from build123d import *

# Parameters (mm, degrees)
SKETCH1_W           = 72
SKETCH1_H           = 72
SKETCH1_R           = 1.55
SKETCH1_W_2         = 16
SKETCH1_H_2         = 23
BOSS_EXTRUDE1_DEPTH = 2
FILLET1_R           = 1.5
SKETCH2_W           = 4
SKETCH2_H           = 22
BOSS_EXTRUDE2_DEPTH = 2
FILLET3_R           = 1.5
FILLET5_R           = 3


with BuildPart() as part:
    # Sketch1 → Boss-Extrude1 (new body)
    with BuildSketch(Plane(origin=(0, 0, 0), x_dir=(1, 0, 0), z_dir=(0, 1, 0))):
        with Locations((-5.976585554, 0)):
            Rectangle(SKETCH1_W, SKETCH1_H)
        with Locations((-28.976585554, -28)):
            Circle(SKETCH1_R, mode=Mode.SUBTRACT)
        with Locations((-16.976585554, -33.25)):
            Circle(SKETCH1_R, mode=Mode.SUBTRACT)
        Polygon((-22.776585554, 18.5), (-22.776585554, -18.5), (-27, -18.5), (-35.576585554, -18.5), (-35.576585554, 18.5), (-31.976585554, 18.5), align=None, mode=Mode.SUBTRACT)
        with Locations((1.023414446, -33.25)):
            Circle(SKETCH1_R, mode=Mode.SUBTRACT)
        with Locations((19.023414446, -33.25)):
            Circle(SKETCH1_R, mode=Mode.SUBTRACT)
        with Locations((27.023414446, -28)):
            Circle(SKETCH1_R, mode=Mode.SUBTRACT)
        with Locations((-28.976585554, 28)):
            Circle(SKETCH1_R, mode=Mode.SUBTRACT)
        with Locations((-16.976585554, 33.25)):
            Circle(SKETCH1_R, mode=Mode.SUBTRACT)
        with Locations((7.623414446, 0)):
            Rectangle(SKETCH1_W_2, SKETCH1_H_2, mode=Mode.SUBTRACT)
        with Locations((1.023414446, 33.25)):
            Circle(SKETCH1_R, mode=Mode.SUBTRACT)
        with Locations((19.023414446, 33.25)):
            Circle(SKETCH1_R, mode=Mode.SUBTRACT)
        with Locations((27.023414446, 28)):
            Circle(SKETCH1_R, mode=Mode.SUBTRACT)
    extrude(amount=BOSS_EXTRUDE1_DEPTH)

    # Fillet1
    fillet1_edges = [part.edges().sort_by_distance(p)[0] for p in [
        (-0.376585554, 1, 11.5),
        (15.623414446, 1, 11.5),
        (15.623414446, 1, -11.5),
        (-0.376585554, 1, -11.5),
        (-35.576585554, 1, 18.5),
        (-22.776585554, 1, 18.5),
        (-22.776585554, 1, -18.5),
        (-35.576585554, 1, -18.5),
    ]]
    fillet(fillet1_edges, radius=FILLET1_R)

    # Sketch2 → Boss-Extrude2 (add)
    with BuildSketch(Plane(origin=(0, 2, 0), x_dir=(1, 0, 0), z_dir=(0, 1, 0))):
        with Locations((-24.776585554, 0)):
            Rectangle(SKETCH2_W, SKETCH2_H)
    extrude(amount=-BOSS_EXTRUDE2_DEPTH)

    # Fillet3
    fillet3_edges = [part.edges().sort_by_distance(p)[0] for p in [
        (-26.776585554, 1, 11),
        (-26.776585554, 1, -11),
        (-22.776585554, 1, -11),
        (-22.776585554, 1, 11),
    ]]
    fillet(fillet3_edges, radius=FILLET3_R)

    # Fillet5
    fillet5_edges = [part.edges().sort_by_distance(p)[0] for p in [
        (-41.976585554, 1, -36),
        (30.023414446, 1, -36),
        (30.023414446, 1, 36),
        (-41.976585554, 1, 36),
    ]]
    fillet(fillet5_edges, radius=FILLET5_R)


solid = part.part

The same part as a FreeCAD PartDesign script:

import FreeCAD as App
import Part
import Sketcher
from FreeCAD import Vector


def edges_at(feature, points):
    """Names of the edges that pass closest to the given points."""
    edges = feature.Shape.Edges
    near = lambda p: min(range(len(edges)), key=lambda i: edges[i].distToShape(Part.Vertex(*p))[0])
    return sorted({f"Edge{near(p) + 1}" for p in points})

doc = App.newDocument("Part")
body = doc.addObject("PartDesign::Body", "Body")

sketch1 = body.newObject("Sketcher::SketchObject", "Sketch")
sketch1.AttachmentSupport = (doc.getObject("XZ_Plane"), [""])
sketch1.MapMode = "FlatFace"
sketch1.addGeometry(Part.LineSegment(Vector(-42, -36, 0), Vector(-42, 36, 0)), False)
sketch1.addGeometry(Part.LineSegment(Vector(-42, 36, 0), Vector(30, 36, 0)), False)
sketch1.addGeometry(Part.LineSegment(Vector(30, 36, 0), Vector(30, -36, 0)), False)
sketch1.addGeometry(Part.LineSegment(Vector(30, -36, 0), Vector(-42, -36, 0)), False)
sketch1.addGeometry(Part.Circle(Vector(-29, 28, 0), Vector(0, 0, 1), 1.6), False)
sketch1.addGeometry(Part.Circle(Vector(-17, 33.2, 0), Vector(0, 0, 1), 1.6), False)
sketch1.addGeometry(Part.Circle(Vector(1, 33.2, 0), Vector(0, 0, 1), 1.6), False)
sketch1.addGeometry(Part.Circle(Vector(19, 33.2, 0), Vector(0, 0, 1), 1.6), False)
sketch1.addGeometry(Part.Circle(Vector(27, 28, 0), Vector(0, 0, 1), 1.6), False)
sketch1.addGeometry(Part.LineSegment(Vector(-35.6, -18.5, 0), Vector(-22.8, -18.5, 0)), False)
sketch1.addGeometry(Part.LineSegment(Vector(-22.8, -18.5, 0), Vector(-22.8, 18.5, 0)), False)
sketch1.addGeometry(Part.LineSegment(Vector(-22.8, 18.5, 0), Vector(-35.6, 18.5, 0)), False)
sketch1.addGeometry(Part.LineSegment(Vector(-35.6, 18.5, 0), Vector(-35.6, -18.5, 0)), False)
sketch1.addGeometry(Part.Circle(Vector(-29, -28, 0), Vector(0, 0, 1), 1.6), False)
sketch1.addGeometry(Part.Circle(Vector(-17, -33.2, 0), Vector(0, 0, 1), 1.6), False)
sketch1.addGeometry(Part.LineSegment(Vector(15.6, 11.5, 0), Vector(-0.4, 11.5, 0)), False)
sketch1.addGeometry(Part.LineSegment(Vector(-0.4, 11.5, 0), Vector(-0.4, -11.5, 0)), False)
sketch1.addGeometry(Part.LineSegment(Vector(-0.4, -11.5, 0), Vector(15.6, -11.5, 0)), False)
sketch1.addGeometry(Part.LineSegment(Vector(15.6, -11.5, 0), Vector(15.6, 11.5, 0)), False)
sketch1.addGeometry(Part.Circle(Vector(1, -33.2, 0), Vector(0, 0, 1), 1.6), False)
sketch1.addGeometry(Part.Circle(Vector(19, -33.2, 0), Vector(0, 0, 1), 1.6), False)
sketch1.addGeometry(Part.Circle(Vector(27, -28, 0), Vector(0, 0, 1), 1.6), False)
sketch1.addConstraint(Sketcher.Constraint("Coincident", 0, 2, 1, 1))
sketch1.addConstraint(Sketcher.Constraint("Coincident", 1, 2, 2, 1))
sketch1.addConstraint(Sketcher.Constraint("Coincident", 2, 2, 3, 1))
sketch1.addConstraint(Sketcher.Constraint("Coincident", 3, 2, 0, 1))
sketch1.addConstraint(Sketcher.Constraint("Coincident", 9, 2, 10, 1))
sketch1.addConstraint(Sketcher.Constraint("Coincident", 10, 2, 11, 1))
sketch1.addConstraint(Sketcher.Constraint("Coincident", 11, 2, 12, 1))
sketch1.addConstraint(Sketcher.Constraint("Coincident", 12, 2, 9, 1))
sketch1.addConstraint(Sketcher.Constraint("Coincident", 15, 2, 16, 1))
sketch1.addConstraint(Sketcher.Constraint("Coincident", 16, 2, 17, 1))
sketch1.addConstraint(Sketcher.Constraint("Coincident", 17, 2, 18, 1))
sketch1.addConstraint(Sketcher.Constraint("Coincident", 18, 2, 15, 1))
sketch1.addConstraint(Sketcher.Constraint("Vertical", 0))
sketch1.addConstraint(Sketcher.Constraint("Horizontal", 1))
sketch1.addConstraint(Sketcher.Constraint("Vertical", 2))
sketch1.addConstraint(Sketcher.Constraint("Horizontal", 3))
sketch1.addConstraint(Sketcher.Constraint("Horizontal", 9))
sketch1.addConstraint(Sketcher.Constraint("Vertical", 10))
sketch1.addConstraint(Sketcher.Constraint("Horizontal", 11))
sketch1.addConstraint(Sketcher.Constraint("Vertical", 12))
sketch1.addConstraint(Sketcher.Constraint("Horizontal", 15))
sketch1.addConstraint(Sketcher.Constraint("Vertical", 16))
sketch1.addConstraint(Sketcher.Constraint("Horizontal", 17))
sketch1.addConstraint(Sketcher.Constraint("Vertical", 18))
sketch1.addConstraint(Sketcher.Constraint("Equal", 4, 5))
sketch1.addConstraint(Sketcher.Constraint("Equal", 5, 6))
sketch1.addConstraint(Sketcher.Constraint("Equal", 6, 7))
sketch1.addConstraint(Sketcher.Constraint("Equal", 7, 8))
sketch1.addConstraint(Sketcher.Constraint("Equal", 8, 13))
sketch1.addConstraint(Sketcher.Constraint("Equal", 13, 14))
sketch1.addConstraint(Sketcher.Constraint("Equal", 14, 19))
sketch1.addConstraint(Sketcher.Constraint("Equal", 19, 20))
sketch1.addConstraint(Sketcher.Constraint("Equal", 20, 21))
sketch1.addConstraint(Sketcher.Constraint("Symmetric", 4, 3, 13, 3, -1))
sketch1.addConstraint(Sketcher.Constraint("Symmetric", 5, 3, 14, 3, -1))
sketch1.addConstraint(Sketcher.Constraint("Symmetric", 6, 3, 19, 3, -1))
sketch1.addConstraint(Sketcher.Constraint("Symmetric", 7, 3, 20, 3, -1))
sketch1.addConstraint(Sketcher.Constraint("Symmetric", 8, 3, 21, 3, -1))
sketch1.addConstraint(Sketcher.Constraint("Horizontal", 5, 3, 6, 3))
sketch1.addConstraint(Sketcher.Constraint("Horizontal", 6, 3, 7, 3))
sketch1.addConstraint(Sketcher.Constraint("Horizontal", 4, 3, 8, 3))
sketch1.addConstraint(Sketcher.Constraint("Equal", 3, 0))
sketch1.addConstraint(Sketcher.Constraint("Diameter", 4, 3.1))
sketch1.addConstraint(Sketcher.Constraint("DistanceX", 1, 1, 1, 2, 72.0))
sketch1.addConstraint(Sketcher.Constraint("DistanceX", 15, 2, 15, 1, 16.0))
sketch1.addConstraint(Sketcher.Constraint("DistanceY", 10, 1, 10, 2, 37.0))
sketch1.addConstraint(Sketcher.Constraint("DistanceY", 16, 2, 16, 1, 23.0))
sketch1.addConstraint(Sketcher.Constraint("DistanceX", 9, 1, 9, 2, 12.8))
sketch1.addConstraint(Sketcher.Constraint("DistanceY", -1, 1, 4, 3, 28.0))
sketch1.addConstraint(Sketcher.Constraint("DistanceY", -1, 1, 0, 2, 36.0))
sketch1.addConstraint(Sketcher.Constraint("DistanceX", 4, 3, 5, 3, 12.0))
sketch1.addConstraint(Sketcher.Constraint("DistanceX", 5, 3, 6, 3, 18.0))
sketch1.addConstraint(Sketcher.Constraint("DistanceX", 6, 3, 7, 3, 18.0))
sketch1.addConstraint(Sketcher.Constraint("DistanceX", 7, 3, 8, 3, 8.0))
sketch1.addConstraint(Sketcher.Constraint("DistanceX", 0, 2, 4, 3, 13.0))
sketch1.addConstraint(Sketcher.Constraint("DistanceY", 15, 2, 10, 2, 7.0))
sketch1.addConstraint(Sketcher.Constraint("DistanceY", 9, 2, -1, 1, 18.5))
sketch1.addConstraint(Sketcher.Constraint("DistanceY", 14, 3, 5, 3, 66.5))
sketch1.addConstraint(Sketcher.Constraint("DistanceX", 13, 3, 9, 2, 6.2))
sketch1.addConstraint(Sketcher.Constraint("DistanceX", 15, 2, 6, 3, 1.4))
sketch1.addConstraint(Sketcher.Constraint("DistanceX", 4, 3, -1, 1, 28.976586))
pad1 = body.newObject("PartDesign::Pad", "Pad")
pad1.Profile = sketch1
pad1.Length = 2
pad1.Reversed = True
doc.recompute()

fillet = body.newObject("PartDesign::Fillet", "Fillet")
fillet.Base = (pad1, edges_at(pad1, [
    (-0.377, 1, 11.5),
    (15.623, 1, 11.5),
    (15.623, 1, -11.5),
    (-0.377, 1, -11.5),
    (-35.577, 1, 18.5),
    (-22.777, 1, 18.5),
    (-22.777, 1, -18.5),
    (-35.577, 1, -18.5),
]))
fillet.Radius = 1.5

sketch2 = body.newObject("Sketcher::SketchObject", "Sketch001")
sketch2.AttachmentSupport = (doc.getObject("XZ_Plane"), [""])
sketch2.MapMode = "FlatFace"
sketch2.AttachmentOffset = App.Placement(Vector(0, 0, -2), App.Rotation())
sketch2.addGeometry(Part.LineSegment(Vector(-26.8, -11, 0), Vector(-26.8, 11, 0)), False)
sketch2.addGeometry(Part.LineSegment(Vector(-26.8, 11, 0), Vector(-22.8, 11, 0)), False)
sketch2.addGeometry(Part.LineSegment(Vector(-22.8, 11, 0), Vector(-22.8, -11, 0)), False)
sketch2.addGeometry(Part.LineSegment(Vector(-22.8, -11, 0), Vector(-26.8, -11, 0)), False)
sketch2.addConstraint(Sketcher.Constraint("Coincident", 0, 2, 1, 1))
sketch2.addConstraint(Sketcher.Constraint("Coincident", 1, 2, 2, 1))
sketch2.addConstraint(Sketcher.Constraint("Coincident", 2, 2, 3, 1))
sketch2.addConstraint(Sketcher.Constraint("Coincident", 3, 2, 0, 1))
sketch2.addConstraint(Sketcher.Constraint("Vertical", 0))
sketch2.addConstraint(Sketcher.Constraint("Horizontal", 1))
sketch2.addConstraint(Sketcher.Constraint("Vertical", 2))
sketch2.addConstraint(Sketcher.Constraint("Horizontal", 3))
sketch2.addConstraint(Sketcher.Constraint("DistanceX", 1, 1, 1, 2, 4.0))
sketch2.addConstraint(Sketcher.Constraint("DistanceY", 0, 1, 0, 2, 22.0))
sketch2.addConstraint(Sketcher.Constraint("DistanceY", -1, 1, 0, 2, 11.0))
sketch2.addConstraint(Sketcher.Constraint("DistanceX", 0, 2, -1, 1, 26.776586))
pad2 = body.newObject("PartDesign::Pad", "Pad001")
pad2.Profile = sketch2
pad2.Length = 2
doc.recompute()

fillet2 = body.newObject("PartDesign::Fillet", "Fillet001")
fillet2.Base = (pad2, edges_at(pad2, [
    (-26.777, 1, 11),
    (-26.777, 1, -11),
    (-22.777, 1, -11),
    (-22.777, 1, 11),
]))
fillet2.Radius = 1.5
doc.recompute()

fillet3 = body.newObject("PartDesign::Fillet", "Fillet002")
fillet3.Base = (fillet2, edges_at(fillet2, [
    (-41.977, 1, -36),
    (30.023, 1, -36),
    (30.023, 1, 36),
    (-41.977, 1, 36),
]))
fillet3.Radius = 3

doc.recompute()
